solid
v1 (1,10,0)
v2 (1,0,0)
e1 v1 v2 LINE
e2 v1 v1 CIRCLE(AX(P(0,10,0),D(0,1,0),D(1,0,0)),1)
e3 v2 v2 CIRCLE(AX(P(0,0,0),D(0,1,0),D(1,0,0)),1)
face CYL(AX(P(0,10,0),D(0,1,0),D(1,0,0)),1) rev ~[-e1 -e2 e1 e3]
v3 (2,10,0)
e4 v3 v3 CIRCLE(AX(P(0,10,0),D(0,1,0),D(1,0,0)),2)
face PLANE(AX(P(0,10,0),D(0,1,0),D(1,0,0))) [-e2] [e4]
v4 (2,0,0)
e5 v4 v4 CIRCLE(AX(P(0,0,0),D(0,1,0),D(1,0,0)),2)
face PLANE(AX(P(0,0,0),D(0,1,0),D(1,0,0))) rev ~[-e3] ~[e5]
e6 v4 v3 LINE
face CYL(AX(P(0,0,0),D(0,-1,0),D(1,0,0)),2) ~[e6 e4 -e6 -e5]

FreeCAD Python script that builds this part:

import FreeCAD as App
import Part
import Sketcher

V = App.Vector
Q = App.Units.Quantity

doc = App.newDocument("Part")
body = doc.addObject("PartDesign::Body", "Body")

sketch1 = doc.addObject("Sketcher::SketchObject", "Sketch")
body.addObject(sketch1)
sketch1.AttachmentSupport = (doc.XZ_Plane, [""])
sketch1.MapMode = "FlatFace"
sketch1.addGeometry(Part.Circle(V(0, 0, 0), V(0, 0, 1), 2), False)
sketch1.addConstraint([
    Sketcher.Constraint("Coincident", 0, 3, -1, 1),
    Sketcher.Constraint("Diameter", 0, Q("4 mm")),
])
pad1 = doc.addObject("PartDesign::Pad", "Pad")
body.addObject(pad1)
pad1.Profile = sketch1
pad1.Length = 10
pad1.Reversed = True

sketch2 = doc.addObject("Sketcher::SketchObject", "Sketch001")
body.addObject(sketch2)
sketch2.AttachmentSupport = (doc.XZ_Plane, [""])
sketch2.MapMode = "FlatFace"
sketch2.AttachmentOffset = App.Placement(V(0, 0, -10), App.Rotation())
sketch2.addGeometry(Part.Circle(V(0, 0, 0), V(0, 0, 1), 1), False)
sketch2.addConstraint([
    Sketcher.Constraint("Coincident", 0, 3, -1, 1),
    Sketcher.Constraint("Diameter", 0, Q("2 mm")),
])
pocket1 = doc.addObject("PartDesign::Pocket", "Pocket")
body.addObject(pocket1)
pocket1.Profile = sketch2
pocket1.Length = 10
pocket1.Reversed = True

doc.recompute()
